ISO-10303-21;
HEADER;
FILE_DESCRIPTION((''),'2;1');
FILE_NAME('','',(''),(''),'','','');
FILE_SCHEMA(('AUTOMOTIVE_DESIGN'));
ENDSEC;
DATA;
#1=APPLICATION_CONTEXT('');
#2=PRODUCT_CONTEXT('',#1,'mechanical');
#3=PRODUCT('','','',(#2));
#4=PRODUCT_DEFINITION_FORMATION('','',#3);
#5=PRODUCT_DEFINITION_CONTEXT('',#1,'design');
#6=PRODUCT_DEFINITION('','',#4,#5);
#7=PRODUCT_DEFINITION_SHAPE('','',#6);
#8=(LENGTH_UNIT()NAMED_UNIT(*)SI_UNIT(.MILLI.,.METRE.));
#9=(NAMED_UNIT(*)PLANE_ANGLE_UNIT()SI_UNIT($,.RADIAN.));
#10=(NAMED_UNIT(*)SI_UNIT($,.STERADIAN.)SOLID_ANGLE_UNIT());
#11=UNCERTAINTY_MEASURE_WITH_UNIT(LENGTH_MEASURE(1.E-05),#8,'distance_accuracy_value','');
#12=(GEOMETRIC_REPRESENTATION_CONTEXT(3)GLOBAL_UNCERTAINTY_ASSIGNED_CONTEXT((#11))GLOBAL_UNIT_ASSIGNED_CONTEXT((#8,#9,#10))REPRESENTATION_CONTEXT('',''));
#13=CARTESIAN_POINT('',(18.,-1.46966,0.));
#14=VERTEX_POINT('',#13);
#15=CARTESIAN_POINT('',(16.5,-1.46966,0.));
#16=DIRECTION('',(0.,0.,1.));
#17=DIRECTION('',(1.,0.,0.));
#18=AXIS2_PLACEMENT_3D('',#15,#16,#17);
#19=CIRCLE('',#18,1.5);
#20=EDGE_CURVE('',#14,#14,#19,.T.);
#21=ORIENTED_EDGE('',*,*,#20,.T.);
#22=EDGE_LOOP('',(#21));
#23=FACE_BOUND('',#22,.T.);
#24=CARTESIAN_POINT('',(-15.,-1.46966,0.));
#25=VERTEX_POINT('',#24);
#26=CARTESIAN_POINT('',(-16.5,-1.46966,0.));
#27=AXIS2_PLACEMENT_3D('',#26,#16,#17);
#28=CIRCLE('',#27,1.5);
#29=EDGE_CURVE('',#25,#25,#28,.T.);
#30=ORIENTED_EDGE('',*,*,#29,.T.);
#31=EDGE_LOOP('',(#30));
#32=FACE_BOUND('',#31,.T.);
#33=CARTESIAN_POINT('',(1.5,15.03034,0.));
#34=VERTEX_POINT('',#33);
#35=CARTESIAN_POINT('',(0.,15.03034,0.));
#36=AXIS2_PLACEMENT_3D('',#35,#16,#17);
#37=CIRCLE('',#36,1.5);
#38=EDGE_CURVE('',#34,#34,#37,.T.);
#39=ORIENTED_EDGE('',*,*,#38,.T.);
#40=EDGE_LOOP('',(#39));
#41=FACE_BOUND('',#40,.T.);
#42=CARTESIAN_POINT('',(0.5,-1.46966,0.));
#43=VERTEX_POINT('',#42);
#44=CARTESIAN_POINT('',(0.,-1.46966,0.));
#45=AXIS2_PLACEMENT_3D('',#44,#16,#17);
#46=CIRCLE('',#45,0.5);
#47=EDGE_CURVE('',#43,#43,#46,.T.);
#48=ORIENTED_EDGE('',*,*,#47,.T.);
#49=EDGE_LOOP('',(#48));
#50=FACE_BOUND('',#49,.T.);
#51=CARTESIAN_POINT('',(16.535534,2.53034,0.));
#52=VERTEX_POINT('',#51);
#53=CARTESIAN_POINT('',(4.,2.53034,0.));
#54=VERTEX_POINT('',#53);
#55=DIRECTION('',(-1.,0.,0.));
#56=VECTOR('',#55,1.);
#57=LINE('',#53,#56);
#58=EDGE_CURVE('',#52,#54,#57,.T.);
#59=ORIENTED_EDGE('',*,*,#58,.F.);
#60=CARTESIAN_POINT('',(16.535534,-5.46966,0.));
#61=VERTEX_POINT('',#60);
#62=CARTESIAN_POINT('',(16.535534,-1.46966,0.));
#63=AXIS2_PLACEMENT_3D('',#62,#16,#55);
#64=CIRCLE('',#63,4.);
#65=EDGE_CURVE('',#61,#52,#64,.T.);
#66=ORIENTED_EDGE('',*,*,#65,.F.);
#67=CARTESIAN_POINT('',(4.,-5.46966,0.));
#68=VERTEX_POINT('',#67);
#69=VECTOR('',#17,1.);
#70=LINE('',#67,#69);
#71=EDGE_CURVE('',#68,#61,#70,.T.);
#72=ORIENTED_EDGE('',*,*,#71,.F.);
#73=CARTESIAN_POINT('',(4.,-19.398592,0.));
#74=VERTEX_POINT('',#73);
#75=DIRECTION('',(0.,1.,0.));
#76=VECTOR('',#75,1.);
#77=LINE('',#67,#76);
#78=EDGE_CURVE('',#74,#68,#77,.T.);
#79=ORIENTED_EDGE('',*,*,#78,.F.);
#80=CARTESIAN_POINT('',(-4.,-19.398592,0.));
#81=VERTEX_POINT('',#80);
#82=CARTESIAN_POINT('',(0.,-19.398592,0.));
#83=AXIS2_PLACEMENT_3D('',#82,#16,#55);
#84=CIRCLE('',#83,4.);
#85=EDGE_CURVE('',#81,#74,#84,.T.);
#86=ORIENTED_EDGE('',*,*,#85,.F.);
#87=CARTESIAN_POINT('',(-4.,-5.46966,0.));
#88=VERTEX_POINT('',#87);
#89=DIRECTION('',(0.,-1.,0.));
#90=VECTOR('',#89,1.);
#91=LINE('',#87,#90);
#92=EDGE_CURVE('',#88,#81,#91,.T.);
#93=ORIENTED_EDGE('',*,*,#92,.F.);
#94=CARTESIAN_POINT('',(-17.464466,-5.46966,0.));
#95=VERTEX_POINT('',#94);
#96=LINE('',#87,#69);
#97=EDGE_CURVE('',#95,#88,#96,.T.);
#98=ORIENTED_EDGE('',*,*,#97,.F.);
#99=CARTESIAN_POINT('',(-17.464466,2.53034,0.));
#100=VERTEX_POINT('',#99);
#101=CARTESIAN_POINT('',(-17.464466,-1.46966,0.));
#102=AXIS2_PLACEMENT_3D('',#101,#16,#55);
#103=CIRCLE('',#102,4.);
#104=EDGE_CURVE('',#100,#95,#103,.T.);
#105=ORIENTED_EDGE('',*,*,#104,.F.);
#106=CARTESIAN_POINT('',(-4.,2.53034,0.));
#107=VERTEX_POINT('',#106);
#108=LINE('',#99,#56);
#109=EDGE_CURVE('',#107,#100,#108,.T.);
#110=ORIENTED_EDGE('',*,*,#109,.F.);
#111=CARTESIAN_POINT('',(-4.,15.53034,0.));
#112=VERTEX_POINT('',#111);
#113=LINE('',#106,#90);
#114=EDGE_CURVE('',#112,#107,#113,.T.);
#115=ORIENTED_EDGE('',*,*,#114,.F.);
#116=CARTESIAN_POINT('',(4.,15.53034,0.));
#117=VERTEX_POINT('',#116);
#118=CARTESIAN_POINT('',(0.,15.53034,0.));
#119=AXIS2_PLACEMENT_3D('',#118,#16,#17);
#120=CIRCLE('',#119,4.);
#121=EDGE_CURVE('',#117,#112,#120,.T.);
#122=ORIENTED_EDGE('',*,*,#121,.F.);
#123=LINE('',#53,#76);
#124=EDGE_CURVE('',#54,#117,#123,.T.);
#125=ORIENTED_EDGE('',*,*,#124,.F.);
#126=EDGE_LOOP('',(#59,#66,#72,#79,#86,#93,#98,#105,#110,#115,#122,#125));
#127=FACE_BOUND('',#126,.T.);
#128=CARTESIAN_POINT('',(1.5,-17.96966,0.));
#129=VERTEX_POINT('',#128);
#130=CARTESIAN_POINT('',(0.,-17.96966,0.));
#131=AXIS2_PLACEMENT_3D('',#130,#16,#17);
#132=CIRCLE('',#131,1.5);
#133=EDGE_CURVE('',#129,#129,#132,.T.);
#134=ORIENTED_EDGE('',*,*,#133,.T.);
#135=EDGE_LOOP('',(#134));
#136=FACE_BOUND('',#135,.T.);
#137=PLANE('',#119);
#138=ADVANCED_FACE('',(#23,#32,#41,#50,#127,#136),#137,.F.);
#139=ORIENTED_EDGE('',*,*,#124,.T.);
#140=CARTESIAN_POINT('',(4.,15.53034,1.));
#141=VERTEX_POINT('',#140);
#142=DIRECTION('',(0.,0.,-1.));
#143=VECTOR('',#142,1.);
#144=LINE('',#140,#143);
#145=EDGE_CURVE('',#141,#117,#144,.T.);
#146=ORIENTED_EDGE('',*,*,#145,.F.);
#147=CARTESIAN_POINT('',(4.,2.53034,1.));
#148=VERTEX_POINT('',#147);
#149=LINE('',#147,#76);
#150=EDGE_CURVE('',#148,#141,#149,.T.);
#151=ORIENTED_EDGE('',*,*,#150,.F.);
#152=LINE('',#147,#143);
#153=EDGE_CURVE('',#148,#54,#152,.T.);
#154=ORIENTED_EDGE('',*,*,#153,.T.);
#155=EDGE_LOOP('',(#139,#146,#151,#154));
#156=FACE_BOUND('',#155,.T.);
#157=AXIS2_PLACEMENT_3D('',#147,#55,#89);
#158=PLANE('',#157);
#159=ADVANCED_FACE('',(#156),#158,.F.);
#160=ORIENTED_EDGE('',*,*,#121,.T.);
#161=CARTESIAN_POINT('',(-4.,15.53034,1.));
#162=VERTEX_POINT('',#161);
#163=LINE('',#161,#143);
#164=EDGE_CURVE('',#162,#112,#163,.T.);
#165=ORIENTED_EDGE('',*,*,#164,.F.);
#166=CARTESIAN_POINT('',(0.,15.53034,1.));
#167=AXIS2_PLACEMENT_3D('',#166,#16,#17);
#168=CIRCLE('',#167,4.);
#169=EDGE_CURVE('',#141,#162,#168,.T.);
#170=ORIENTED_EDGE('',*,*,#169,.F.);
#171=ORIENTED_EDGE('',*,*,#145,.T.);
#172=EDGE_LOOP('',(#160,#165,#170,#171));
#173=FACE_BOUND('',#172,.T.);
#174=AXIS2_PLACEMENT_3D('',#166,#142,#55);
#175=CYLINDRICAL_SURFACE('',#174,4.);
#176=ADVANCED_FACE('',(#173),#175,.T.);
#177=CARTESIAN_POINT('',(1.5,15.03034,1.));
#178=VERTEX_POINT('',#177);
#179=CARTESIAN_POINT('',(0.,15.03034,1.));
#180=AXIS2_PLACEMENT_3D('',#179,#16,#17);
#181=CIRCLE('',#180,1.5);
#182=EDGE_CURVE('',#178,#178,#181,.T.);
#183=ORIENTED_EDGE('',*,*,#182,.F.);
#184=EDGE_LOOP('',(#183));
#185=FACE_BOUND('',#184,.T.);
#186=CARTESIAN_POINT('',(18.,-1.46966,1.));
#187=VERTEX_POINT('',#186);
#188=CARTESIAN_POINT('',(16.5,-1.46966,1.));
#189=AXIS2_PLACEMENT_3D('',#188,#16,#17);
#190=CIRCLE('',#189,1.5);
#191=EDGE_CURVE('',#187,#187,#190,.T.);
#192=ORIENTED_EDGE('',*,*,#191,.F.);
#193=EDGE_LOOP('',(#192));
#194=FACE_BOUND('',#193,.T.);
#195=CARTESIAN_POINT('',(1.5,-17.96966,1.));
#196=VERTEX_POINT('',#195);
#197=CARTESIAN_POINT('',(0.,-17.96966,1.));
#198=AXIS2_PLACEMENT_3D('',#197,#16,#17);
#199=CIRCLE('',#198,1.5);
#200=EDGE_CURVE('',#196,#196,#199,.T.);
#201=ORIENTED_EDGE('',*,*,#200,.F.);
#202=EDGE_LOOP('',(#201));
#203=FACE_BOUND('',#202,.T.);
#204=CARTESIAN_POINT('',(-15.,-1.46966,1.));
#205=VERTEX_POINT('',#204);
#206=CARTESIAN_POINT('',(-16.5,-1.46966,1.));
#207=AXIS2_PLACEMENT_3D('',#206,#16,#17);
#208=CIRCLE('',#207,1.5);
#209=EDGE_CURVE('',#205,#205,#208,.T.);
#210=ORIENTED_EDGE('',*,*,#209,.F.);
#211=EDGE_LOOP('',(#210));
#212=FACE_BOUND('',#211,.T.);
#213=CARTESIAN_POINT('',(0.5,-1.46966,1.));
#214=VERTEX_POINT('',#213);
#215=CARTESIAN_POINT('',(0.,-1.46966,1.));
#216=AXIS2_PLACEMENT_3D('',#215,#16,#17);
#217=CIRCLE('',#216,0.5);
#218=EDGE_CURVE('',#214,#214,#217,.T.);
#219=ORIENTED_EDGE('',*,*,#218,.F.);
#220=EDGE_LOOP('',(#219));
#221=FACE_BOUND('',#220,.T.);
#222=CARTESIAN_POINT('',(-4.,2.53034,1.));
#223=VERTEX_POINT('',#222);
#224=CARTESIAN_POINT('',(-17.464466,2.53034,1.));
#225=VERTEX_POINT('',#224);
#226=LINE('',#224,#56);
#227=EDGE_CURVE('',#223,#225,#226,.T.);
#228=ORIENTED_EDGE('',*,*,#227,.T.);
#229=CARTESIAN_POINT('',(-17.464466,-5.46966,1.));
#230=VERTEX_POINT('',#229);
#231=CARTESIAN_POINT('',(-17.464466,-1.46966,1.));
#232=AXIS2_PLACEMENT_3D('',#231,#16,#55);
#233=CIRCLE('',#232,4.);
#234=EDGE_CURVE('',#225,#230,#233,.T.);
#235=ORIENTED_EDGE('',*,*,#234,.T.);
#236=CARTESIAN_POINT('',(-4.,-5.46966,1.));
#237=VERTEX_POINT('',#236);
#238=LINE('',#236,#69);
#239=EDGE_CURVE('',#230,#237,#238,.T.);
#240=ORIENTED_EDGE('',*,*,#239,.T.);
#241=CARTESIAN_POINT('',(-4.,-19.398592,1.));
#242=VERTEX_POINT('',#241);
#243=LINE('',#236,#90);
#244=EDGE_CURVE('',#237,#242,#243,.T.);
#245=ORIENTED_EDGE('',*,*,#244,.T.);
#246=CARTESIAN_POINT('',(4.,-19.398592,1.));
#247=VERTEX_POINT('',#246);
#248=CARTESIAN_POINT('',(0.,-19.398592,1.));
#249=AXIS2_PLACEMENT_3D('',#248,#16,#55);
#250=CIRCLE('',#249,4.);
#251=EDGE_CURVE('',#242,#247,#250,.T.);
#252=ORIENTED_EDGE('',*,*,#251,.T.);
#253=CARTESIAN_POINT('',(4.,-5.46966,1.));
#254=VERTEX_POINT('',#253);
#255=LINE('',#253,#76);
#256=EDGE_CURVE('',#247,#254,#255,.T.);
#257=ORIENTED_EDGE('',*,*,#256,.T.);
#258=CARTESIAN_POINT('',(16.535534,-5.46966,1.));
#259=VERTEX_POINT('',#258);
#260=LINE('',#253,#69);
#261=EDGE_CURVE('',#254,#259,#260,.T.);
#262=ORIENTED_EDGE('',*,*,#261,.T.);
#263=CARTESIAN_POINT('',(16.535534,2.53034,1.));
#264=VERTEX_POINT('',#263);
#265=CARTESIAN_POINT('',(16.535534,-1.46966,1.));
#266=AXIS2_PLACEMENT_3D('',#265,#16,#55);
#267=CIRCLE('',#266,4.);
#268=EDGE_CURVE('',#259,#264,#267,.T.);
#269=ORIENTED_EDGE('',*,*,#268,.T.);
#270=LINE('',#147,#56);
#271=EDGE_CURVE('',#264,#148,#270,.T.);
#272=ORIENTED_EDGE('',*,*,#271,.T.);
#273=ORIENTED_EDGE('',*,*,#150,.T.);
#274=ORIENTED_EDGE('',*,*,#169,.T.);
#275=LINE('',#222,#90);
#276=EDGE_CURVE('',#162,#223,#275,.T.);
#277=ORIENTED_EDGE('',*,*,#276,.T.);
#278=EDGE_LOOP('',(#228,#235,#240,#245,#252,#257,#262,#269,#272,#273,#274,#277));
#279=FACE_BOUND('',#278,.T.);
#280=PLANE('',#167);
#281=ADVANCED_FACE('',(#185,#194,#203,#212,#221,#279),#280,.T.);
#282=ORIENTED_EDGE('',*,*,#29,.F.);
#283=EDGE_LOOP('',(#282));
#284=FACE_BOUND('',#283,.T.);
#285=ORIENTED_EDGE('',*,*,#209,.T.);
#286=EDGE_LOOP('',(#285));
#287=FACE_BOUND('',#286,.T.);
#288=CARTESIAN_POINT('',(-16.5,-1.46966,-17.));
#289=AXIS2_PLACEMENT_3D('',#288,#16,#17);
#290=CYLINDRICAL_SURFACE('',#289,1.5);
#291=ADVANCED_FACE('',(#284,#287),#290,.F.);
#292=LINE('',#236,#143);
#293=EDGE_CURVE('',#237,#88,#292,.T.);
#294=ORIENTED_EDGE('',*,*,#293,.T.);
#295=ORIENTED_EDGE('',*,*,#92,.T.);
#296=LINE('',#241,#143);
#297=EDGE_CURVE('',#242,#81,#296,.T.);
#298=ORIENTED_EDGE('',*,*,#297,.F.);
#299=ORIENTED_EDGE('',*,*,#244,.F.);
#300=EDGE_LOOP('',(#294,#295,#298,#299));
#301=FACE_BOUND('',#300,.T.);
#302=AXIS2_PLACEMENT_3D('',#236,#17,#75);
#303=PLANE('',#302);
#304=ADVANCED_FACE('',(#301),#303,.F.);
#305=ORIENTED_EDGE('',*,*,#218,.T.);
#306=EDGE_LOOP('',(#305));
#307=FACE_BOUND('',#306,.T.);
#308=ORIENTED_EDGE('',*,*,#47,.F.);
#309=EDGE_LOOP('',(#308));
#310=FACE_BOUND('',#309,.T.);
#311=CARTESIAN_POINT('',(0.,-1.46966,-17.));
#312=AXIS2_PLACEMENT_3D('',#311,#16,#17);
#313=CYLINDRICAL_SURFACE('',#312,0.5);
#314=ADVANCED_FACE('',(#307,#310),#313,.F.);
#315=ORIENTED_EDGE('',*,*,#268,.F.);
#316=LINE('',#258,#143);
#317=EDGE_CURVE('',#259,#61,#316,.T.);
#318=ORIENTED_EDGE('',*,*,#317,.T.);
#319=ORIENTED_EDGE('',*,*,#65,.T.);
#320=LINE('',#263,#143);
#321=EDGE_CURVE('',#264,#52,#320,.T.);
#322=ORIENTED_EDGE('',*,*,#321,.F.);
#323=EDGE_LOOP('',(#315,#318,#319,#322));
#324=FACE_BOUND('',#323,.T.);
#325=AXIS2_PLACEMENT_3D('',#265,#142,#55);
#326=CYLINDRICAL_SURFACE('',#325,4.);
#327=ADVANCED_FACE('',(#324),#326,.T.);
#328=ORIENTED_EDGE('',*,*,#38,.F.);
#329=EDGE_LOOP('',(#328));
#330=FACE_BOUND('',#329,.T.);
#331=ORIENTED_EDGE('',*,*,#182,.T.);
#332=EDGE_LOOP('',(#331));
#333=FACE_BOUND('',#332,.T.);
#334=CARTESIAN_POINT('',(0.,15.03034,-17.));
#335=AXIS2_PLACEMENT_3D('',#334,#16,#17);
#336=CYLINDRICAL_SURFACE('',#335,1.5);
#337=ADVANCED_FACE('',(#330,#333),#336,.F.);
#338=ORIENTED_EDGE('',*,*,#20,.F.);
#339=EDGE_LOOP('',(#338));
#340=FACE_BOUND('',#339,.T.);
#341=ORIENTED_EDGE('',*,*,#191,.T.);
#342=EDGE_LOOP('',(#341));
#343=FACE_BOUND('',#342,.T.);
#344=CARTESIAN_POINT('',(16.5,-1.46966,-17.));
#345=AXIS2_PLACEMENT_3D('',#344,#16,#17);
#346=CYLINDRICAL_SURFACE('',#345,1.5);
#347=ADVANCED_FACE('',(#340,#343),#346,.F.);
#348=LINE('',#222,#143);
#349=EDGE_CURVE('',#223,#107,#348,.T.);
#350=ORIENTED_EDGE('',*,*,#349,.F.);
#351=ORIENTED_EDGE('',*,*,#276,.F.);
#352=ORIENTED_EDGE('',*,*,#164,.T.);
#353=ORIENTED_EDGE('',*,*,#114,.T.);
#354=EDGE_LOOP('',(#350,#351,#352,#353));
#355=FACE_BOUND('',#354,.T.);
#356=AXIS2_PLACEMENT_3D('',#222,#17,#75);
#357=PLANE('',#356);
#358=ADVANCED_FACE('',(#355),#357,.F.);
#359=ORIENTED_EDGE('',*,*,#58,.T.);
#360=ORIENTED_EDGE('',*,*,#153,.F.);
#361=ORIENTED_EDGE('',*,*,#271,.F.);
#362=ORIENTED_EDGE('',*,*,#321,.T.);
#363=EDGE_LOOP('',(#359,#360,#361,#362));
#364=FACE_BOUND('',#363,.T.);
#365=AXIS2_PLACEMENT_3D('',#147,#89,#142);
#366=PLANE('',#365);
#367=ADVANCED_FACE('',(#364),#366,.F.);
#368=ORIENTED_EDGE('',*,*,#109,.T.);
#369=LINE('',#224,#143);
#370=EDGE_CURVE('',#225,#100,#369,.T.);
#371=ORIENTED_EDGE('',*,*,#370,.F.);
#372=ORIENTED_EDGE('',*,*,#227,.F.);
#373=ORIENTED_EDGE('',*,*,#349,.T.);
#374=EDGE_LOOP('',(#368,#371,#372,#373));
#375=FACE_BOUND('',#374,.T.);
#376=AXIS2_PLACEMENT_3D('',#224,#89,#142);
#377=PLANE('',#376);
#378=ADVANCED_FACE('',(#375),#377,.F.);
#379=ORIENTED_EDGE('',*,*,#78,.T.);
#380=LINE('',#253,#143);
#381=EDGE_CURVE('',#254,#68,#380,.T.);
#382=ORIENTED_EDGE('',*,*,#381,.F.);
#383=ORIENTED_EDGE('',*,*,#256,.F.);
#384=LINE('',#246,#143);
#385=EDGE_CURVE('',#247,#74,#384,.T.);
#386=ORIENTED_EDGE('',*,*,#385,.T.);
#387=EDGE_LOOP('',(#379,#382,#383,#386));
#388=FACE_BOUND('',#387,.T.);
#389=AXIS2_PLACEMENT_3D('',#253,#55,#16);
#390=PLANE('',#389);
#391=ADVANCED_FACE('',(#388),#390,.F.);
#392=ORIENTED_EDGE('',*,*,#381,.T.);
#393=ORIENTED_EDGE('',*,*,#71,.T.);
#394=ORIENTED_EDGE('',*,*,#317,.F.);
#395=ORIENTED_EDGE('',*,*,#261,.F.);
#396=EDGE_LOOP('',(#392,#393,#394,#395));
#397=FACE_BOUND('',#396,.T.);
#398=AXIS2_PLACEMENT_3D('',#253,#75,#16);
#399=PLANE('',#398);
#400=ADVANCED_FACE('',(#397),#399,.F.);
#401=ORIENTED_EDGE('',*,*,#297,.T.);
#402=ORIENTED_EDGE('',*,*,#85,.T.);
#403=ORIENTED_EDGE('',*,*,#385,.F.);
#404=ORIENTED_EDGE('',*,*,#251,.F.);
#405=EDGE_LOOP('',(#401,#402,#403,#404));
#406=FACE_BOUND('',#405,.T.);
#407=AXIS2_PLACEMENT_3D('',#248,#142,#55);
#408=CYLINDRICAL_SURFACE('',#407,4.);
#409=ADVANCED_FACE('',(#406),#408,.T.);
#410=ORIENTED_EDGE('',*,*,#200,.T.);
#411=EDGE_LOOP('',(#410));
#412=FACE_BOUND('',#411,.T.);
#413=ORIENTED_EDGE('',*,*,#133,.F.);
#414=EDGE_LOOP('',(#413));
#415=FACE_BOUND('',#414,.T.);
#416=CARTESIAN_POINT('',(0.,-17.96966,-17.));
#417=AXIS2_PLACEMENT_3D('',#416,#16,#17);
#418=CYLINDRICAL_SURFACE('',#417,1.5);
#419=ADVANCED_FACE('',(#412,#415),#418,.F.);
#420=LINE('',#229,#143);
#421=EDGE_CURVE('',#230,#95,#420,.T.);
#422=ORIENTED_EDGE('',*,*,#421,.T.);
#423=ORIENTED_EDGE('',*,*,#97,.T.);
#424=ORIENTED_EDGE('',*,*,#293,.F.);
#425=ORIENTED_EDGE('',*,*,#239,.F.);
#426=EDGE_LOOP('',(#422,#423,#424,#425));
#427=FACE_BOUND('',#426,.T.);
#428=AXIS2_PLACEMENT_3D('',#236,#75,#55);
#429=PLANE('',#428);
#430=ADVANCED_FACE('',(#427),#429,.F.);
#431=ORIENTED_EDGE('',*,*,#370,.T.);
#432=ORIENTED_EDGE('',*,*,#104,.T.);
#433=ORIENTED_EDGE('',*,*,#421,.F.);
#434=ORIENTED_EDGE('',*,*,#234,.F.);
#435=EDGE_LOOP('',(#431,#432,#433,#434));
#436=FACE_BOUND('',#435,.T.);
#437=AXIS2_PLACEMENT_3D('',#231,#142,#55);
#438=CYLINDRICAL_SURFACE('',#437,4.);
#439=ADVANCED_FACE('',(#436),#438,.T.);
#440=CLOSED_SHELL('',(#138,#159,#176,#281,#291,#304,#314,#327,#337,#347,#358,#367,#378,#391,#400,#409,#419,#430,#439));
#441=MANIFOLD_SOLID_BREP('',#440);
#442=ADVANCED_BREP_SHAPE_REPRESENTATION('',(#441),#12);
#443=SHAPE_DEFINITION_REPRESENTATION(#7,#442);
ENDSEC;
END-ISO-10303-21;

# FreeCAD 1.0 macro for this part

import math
import FreeCAD as App
import Part
import Sketcher

V = App.Vector

doc = App.newDocument("Part")
body = doc.addObject("PartDesign::Body", "Body")

sketch1 = body.newObject("Sketcher::SketchObject", "Sketch")
sketch1.AttachmentSupport = (doc.getObject("XY_Plane"), [""])
sketch1.MapMode = "FlatFace"
sketch1.addGeometry(Part.LineSegment(V(-4, 15.53034, 0), V(-4, 2.53034, 0)), False)
sketch1.addGeometry(Part.LineSegment(V(-4, 2.53034, 0), V(-17.464466, 2.53034, 0)), False)
sketch1.addGeometry(Part.ArcOfCircle(Part.Circle(V(-17.464466, -1.46966, 0), V(0, 0, 1), 4), math.radians(90), math.radians(270)), False)
sketch1.addGeometry(Part.LineSegment(V(-17.464466, -5.46966, 0), V(-4, -5.46966, 0)), False)
sketch1.addGeometry(Part.LineSegment(V(-4, -5.46966, 0), V(-4, -19.398592, 0)), False)
sketch1.addGeometry(Part.ArcOfCircle(Part.Circle(V(0, -19.398592, 0), V(0, 0, 1), 4), math.radians(180), math.radians(360)), False)
sketch1.addGeometry(Part.LineSegment(V(4, -19.398592, 0), V(4, -5.46966, 0)), False)
sketch1.addGeometry(Part.LineSegment(V(4, -5.46966, 0), V(16.535534, -5.46966, 0)), False)
sketch1.addGeometry(Part.ArcOfCircle(Part.Circle(V(16.535534, -1.46966, 0), V(0, 0, 1), 4), math.radians(-90), math.radians(90)), False)
sketch1.addGeometry(Part.LineSegment(V(16.535534, 2.53034, 0), V(4, 2.53034, 0)), False)
sketch1.addGeometry(Part.LineSegment(V(4, 2.53034, 0), V(4, 15.53034, 0)), False)
sketch1.addGeometry(Part.ArcOfCircle(Part.Circle(V(0, 15.53034, 0), V(0, 0, 1), 4), math.radians(0), math.radians(180)), False)
sketch1.addConstraint(Sketcher.Constraint("Coincident", 0, 2, 1, 1))
sketch1.addConstraint(Sketcher.Constraint("Tangent", 1, 2, 2, 1))
sketch1.addConstraint(Sketcher.Constraint("Tangent", 2, 2, 3, 1))
sketch1.addConstraint(Sketcher.Constraint("Coincident", 3, 2, 4, 1))
sketch1.addConstraint(Sketcher.Constraint("Tangent", 4, 2, 5, 1))
sketch1.addConstraint(Sketcher.Constraint("Tangent", 5, 2, 6, 1))
sketch1.addConstraint(Sketcher.Constraint("Coincident", 6, 2, 7, 1))
sketch1.addConstraint(Sketcher.Constraint("Tangent", 7, 2, 8, 1))
sketch1.addConstraint(Sketcher.Constraint("Tangent", 8, 2, 9, 1))
sketch1.addConstraint(Sketcher.Constraint("Coincident", 9, 2, 10, 1))
sketch1.addConstraint(Sketcher.Constraint("Tangent", 10, 2, 11, 1))
sketch1.addConstraint(Sketcher.Constraint("Tangent", 11, 2, 0, 1))
sketch1.addConstraint(Sketcher.Constraint("Vertical", 0))
sketch1.addConstraint(Sketcher.Constraint("Horizontal", 1))
sketch1.addConstraint(Sketcher.Constraint("Horizontal", 3))
sketch1.addConstraint(Sketcher.Constraint("Vertical", 4))
sketch1.addConstraint(Sketcher.Constraint("Vertical", 6))
sketch1.addConstraint(Sketcher.Constraint("Horizontal", 7))
sketch1.addConstraint(Sketcher.Constraint("Horizontal", 9))
sketch1.addConstraint(Sketcher.Constraint("Vertical", 10))
sketch1.addConstraint(Sketcher.Constraint("Equal", 2, 5))
sketch1.addConstraint(Sketcher.Constraint("Equal", 5, 8))
sketch1.addConstraint(Sketcher.Constraint("Equal", 8, 11))
sketch1.addConstraint(Sketcher.Constraint("Symmetric", 3, 2, 6, 2, -2))
sketch1.addConstraint(Sketcher.Constraint("PointOnObject", 11, 3, -2))
sketch1.addConstraint(Sketcher.Constraint("Radius", 2, 4.0))
sketch1.addConstraint(Sketcher.Constraint("DistanceY", 0, 2, 0, 1, 13.0))
sketch1.addConstraint(Sketcher.Constraint("DistanceX", 2, 3, 8, 3, 34.0))
sketch1.addConstraint(Sketcher.Constraint("DistanceX", 1, 2, 1, 1, 13.464466))
sketch1.addConstraint(Sketcher.Constraint("DistanceY", 4, 2, 4, 1, 13.928932))
sketch1.addConstraint(Sketcher.Constraint("DistanceY", 2, 3, -1, 1, 1.46966))
pad1 = body.newObject("PartDesign::Pad", "Pad")
pad1.Profile = sketch1
pad1.Length = 1

sketch2 = body.newObject("Sketcher::SketchObject", "Sketch001")
sketch2.AttachmentSupport = (doc.getObject("XY_Plane"), [""])
sketch2.MapMode = "FlatFace"
sketch2.AttachmentOffset = App.Placement(V(0, 0, 1), App.Rotation())
sketch2.addGeometry(Part.Circle(V(0, 15.03034, 0), V(0, 0, 1), 1.5), False)
sketch2.addGeometry(Part.Circle(V(16.5, -1.46966, 0), V(0, 0, 1), 1.5), False)
sketch2.addGeometry(Part.Circle(V(0, -17.96966, 0), V(0, 0, 1), 1.5), False)
sketch2.addGeometry(Part.Circle(V(-16.5, -1.46966, 0), V(0, 0, 1), 1.5), False)
sketch2.addGeometry(Part.Circle(V(0, -1.46966, 0), V(0, 0, 1), 0.5), False)
sketch2.addConstraint(Sketcher.Constraint("Equal", 0, 1))
sketch2.addConstraint(Sketcher.Constraint("Equal", 1, 2))
sketch2.addConstraint(Sketcher.Constraint("Equal", 2, 3))
sketch2.addConstraint(Sketcher.Constraint("Symmetric", 1, 3, 3, 3, -2))
sketch2.addConstraint(Sketcher.Constraint("PointOnObject", 0, 3, -2))
sketch2.addConstraint(Sketcher.Constraint("PointOnObject", 2, 3, -2))
sketch2.addConstraint(Sketcher.Constraint("PointOnObject", 4, 3, -2))
sketch2.addConstraint(Sketcher.Constraint("Horizontal", 3, 3, 4, 3))
sketch2.addConstraint(Sketcher.Constraint("Diameter", 0, 3.0))
sketch2.addConstraint(Sketcher.Constraint("Diameter", 4, 1.0))
sketch2.addConstraint(Sketcher.Constraint("DistanceY", 2, 3, 0, 3, 33.0))
sketch2.addConstraint(Sketcher.Constraint("DistanceX", 3, 3, 1, 3, 33.0))
sketch2.addConstraint(Sketcher.Constraint("DistanceY", 1, 3, 0, 3, 16.5))
sketch2.addConstraint(Sketcher.Constraint("DistanceY", -1, 1, 0, 3, 15.03034))
pocket1 = body.newObject("PartDesign::Pocket", "Pocket")
pocket1.Profile = sketch2
pocket1.Length = 18

doc.recompute()
